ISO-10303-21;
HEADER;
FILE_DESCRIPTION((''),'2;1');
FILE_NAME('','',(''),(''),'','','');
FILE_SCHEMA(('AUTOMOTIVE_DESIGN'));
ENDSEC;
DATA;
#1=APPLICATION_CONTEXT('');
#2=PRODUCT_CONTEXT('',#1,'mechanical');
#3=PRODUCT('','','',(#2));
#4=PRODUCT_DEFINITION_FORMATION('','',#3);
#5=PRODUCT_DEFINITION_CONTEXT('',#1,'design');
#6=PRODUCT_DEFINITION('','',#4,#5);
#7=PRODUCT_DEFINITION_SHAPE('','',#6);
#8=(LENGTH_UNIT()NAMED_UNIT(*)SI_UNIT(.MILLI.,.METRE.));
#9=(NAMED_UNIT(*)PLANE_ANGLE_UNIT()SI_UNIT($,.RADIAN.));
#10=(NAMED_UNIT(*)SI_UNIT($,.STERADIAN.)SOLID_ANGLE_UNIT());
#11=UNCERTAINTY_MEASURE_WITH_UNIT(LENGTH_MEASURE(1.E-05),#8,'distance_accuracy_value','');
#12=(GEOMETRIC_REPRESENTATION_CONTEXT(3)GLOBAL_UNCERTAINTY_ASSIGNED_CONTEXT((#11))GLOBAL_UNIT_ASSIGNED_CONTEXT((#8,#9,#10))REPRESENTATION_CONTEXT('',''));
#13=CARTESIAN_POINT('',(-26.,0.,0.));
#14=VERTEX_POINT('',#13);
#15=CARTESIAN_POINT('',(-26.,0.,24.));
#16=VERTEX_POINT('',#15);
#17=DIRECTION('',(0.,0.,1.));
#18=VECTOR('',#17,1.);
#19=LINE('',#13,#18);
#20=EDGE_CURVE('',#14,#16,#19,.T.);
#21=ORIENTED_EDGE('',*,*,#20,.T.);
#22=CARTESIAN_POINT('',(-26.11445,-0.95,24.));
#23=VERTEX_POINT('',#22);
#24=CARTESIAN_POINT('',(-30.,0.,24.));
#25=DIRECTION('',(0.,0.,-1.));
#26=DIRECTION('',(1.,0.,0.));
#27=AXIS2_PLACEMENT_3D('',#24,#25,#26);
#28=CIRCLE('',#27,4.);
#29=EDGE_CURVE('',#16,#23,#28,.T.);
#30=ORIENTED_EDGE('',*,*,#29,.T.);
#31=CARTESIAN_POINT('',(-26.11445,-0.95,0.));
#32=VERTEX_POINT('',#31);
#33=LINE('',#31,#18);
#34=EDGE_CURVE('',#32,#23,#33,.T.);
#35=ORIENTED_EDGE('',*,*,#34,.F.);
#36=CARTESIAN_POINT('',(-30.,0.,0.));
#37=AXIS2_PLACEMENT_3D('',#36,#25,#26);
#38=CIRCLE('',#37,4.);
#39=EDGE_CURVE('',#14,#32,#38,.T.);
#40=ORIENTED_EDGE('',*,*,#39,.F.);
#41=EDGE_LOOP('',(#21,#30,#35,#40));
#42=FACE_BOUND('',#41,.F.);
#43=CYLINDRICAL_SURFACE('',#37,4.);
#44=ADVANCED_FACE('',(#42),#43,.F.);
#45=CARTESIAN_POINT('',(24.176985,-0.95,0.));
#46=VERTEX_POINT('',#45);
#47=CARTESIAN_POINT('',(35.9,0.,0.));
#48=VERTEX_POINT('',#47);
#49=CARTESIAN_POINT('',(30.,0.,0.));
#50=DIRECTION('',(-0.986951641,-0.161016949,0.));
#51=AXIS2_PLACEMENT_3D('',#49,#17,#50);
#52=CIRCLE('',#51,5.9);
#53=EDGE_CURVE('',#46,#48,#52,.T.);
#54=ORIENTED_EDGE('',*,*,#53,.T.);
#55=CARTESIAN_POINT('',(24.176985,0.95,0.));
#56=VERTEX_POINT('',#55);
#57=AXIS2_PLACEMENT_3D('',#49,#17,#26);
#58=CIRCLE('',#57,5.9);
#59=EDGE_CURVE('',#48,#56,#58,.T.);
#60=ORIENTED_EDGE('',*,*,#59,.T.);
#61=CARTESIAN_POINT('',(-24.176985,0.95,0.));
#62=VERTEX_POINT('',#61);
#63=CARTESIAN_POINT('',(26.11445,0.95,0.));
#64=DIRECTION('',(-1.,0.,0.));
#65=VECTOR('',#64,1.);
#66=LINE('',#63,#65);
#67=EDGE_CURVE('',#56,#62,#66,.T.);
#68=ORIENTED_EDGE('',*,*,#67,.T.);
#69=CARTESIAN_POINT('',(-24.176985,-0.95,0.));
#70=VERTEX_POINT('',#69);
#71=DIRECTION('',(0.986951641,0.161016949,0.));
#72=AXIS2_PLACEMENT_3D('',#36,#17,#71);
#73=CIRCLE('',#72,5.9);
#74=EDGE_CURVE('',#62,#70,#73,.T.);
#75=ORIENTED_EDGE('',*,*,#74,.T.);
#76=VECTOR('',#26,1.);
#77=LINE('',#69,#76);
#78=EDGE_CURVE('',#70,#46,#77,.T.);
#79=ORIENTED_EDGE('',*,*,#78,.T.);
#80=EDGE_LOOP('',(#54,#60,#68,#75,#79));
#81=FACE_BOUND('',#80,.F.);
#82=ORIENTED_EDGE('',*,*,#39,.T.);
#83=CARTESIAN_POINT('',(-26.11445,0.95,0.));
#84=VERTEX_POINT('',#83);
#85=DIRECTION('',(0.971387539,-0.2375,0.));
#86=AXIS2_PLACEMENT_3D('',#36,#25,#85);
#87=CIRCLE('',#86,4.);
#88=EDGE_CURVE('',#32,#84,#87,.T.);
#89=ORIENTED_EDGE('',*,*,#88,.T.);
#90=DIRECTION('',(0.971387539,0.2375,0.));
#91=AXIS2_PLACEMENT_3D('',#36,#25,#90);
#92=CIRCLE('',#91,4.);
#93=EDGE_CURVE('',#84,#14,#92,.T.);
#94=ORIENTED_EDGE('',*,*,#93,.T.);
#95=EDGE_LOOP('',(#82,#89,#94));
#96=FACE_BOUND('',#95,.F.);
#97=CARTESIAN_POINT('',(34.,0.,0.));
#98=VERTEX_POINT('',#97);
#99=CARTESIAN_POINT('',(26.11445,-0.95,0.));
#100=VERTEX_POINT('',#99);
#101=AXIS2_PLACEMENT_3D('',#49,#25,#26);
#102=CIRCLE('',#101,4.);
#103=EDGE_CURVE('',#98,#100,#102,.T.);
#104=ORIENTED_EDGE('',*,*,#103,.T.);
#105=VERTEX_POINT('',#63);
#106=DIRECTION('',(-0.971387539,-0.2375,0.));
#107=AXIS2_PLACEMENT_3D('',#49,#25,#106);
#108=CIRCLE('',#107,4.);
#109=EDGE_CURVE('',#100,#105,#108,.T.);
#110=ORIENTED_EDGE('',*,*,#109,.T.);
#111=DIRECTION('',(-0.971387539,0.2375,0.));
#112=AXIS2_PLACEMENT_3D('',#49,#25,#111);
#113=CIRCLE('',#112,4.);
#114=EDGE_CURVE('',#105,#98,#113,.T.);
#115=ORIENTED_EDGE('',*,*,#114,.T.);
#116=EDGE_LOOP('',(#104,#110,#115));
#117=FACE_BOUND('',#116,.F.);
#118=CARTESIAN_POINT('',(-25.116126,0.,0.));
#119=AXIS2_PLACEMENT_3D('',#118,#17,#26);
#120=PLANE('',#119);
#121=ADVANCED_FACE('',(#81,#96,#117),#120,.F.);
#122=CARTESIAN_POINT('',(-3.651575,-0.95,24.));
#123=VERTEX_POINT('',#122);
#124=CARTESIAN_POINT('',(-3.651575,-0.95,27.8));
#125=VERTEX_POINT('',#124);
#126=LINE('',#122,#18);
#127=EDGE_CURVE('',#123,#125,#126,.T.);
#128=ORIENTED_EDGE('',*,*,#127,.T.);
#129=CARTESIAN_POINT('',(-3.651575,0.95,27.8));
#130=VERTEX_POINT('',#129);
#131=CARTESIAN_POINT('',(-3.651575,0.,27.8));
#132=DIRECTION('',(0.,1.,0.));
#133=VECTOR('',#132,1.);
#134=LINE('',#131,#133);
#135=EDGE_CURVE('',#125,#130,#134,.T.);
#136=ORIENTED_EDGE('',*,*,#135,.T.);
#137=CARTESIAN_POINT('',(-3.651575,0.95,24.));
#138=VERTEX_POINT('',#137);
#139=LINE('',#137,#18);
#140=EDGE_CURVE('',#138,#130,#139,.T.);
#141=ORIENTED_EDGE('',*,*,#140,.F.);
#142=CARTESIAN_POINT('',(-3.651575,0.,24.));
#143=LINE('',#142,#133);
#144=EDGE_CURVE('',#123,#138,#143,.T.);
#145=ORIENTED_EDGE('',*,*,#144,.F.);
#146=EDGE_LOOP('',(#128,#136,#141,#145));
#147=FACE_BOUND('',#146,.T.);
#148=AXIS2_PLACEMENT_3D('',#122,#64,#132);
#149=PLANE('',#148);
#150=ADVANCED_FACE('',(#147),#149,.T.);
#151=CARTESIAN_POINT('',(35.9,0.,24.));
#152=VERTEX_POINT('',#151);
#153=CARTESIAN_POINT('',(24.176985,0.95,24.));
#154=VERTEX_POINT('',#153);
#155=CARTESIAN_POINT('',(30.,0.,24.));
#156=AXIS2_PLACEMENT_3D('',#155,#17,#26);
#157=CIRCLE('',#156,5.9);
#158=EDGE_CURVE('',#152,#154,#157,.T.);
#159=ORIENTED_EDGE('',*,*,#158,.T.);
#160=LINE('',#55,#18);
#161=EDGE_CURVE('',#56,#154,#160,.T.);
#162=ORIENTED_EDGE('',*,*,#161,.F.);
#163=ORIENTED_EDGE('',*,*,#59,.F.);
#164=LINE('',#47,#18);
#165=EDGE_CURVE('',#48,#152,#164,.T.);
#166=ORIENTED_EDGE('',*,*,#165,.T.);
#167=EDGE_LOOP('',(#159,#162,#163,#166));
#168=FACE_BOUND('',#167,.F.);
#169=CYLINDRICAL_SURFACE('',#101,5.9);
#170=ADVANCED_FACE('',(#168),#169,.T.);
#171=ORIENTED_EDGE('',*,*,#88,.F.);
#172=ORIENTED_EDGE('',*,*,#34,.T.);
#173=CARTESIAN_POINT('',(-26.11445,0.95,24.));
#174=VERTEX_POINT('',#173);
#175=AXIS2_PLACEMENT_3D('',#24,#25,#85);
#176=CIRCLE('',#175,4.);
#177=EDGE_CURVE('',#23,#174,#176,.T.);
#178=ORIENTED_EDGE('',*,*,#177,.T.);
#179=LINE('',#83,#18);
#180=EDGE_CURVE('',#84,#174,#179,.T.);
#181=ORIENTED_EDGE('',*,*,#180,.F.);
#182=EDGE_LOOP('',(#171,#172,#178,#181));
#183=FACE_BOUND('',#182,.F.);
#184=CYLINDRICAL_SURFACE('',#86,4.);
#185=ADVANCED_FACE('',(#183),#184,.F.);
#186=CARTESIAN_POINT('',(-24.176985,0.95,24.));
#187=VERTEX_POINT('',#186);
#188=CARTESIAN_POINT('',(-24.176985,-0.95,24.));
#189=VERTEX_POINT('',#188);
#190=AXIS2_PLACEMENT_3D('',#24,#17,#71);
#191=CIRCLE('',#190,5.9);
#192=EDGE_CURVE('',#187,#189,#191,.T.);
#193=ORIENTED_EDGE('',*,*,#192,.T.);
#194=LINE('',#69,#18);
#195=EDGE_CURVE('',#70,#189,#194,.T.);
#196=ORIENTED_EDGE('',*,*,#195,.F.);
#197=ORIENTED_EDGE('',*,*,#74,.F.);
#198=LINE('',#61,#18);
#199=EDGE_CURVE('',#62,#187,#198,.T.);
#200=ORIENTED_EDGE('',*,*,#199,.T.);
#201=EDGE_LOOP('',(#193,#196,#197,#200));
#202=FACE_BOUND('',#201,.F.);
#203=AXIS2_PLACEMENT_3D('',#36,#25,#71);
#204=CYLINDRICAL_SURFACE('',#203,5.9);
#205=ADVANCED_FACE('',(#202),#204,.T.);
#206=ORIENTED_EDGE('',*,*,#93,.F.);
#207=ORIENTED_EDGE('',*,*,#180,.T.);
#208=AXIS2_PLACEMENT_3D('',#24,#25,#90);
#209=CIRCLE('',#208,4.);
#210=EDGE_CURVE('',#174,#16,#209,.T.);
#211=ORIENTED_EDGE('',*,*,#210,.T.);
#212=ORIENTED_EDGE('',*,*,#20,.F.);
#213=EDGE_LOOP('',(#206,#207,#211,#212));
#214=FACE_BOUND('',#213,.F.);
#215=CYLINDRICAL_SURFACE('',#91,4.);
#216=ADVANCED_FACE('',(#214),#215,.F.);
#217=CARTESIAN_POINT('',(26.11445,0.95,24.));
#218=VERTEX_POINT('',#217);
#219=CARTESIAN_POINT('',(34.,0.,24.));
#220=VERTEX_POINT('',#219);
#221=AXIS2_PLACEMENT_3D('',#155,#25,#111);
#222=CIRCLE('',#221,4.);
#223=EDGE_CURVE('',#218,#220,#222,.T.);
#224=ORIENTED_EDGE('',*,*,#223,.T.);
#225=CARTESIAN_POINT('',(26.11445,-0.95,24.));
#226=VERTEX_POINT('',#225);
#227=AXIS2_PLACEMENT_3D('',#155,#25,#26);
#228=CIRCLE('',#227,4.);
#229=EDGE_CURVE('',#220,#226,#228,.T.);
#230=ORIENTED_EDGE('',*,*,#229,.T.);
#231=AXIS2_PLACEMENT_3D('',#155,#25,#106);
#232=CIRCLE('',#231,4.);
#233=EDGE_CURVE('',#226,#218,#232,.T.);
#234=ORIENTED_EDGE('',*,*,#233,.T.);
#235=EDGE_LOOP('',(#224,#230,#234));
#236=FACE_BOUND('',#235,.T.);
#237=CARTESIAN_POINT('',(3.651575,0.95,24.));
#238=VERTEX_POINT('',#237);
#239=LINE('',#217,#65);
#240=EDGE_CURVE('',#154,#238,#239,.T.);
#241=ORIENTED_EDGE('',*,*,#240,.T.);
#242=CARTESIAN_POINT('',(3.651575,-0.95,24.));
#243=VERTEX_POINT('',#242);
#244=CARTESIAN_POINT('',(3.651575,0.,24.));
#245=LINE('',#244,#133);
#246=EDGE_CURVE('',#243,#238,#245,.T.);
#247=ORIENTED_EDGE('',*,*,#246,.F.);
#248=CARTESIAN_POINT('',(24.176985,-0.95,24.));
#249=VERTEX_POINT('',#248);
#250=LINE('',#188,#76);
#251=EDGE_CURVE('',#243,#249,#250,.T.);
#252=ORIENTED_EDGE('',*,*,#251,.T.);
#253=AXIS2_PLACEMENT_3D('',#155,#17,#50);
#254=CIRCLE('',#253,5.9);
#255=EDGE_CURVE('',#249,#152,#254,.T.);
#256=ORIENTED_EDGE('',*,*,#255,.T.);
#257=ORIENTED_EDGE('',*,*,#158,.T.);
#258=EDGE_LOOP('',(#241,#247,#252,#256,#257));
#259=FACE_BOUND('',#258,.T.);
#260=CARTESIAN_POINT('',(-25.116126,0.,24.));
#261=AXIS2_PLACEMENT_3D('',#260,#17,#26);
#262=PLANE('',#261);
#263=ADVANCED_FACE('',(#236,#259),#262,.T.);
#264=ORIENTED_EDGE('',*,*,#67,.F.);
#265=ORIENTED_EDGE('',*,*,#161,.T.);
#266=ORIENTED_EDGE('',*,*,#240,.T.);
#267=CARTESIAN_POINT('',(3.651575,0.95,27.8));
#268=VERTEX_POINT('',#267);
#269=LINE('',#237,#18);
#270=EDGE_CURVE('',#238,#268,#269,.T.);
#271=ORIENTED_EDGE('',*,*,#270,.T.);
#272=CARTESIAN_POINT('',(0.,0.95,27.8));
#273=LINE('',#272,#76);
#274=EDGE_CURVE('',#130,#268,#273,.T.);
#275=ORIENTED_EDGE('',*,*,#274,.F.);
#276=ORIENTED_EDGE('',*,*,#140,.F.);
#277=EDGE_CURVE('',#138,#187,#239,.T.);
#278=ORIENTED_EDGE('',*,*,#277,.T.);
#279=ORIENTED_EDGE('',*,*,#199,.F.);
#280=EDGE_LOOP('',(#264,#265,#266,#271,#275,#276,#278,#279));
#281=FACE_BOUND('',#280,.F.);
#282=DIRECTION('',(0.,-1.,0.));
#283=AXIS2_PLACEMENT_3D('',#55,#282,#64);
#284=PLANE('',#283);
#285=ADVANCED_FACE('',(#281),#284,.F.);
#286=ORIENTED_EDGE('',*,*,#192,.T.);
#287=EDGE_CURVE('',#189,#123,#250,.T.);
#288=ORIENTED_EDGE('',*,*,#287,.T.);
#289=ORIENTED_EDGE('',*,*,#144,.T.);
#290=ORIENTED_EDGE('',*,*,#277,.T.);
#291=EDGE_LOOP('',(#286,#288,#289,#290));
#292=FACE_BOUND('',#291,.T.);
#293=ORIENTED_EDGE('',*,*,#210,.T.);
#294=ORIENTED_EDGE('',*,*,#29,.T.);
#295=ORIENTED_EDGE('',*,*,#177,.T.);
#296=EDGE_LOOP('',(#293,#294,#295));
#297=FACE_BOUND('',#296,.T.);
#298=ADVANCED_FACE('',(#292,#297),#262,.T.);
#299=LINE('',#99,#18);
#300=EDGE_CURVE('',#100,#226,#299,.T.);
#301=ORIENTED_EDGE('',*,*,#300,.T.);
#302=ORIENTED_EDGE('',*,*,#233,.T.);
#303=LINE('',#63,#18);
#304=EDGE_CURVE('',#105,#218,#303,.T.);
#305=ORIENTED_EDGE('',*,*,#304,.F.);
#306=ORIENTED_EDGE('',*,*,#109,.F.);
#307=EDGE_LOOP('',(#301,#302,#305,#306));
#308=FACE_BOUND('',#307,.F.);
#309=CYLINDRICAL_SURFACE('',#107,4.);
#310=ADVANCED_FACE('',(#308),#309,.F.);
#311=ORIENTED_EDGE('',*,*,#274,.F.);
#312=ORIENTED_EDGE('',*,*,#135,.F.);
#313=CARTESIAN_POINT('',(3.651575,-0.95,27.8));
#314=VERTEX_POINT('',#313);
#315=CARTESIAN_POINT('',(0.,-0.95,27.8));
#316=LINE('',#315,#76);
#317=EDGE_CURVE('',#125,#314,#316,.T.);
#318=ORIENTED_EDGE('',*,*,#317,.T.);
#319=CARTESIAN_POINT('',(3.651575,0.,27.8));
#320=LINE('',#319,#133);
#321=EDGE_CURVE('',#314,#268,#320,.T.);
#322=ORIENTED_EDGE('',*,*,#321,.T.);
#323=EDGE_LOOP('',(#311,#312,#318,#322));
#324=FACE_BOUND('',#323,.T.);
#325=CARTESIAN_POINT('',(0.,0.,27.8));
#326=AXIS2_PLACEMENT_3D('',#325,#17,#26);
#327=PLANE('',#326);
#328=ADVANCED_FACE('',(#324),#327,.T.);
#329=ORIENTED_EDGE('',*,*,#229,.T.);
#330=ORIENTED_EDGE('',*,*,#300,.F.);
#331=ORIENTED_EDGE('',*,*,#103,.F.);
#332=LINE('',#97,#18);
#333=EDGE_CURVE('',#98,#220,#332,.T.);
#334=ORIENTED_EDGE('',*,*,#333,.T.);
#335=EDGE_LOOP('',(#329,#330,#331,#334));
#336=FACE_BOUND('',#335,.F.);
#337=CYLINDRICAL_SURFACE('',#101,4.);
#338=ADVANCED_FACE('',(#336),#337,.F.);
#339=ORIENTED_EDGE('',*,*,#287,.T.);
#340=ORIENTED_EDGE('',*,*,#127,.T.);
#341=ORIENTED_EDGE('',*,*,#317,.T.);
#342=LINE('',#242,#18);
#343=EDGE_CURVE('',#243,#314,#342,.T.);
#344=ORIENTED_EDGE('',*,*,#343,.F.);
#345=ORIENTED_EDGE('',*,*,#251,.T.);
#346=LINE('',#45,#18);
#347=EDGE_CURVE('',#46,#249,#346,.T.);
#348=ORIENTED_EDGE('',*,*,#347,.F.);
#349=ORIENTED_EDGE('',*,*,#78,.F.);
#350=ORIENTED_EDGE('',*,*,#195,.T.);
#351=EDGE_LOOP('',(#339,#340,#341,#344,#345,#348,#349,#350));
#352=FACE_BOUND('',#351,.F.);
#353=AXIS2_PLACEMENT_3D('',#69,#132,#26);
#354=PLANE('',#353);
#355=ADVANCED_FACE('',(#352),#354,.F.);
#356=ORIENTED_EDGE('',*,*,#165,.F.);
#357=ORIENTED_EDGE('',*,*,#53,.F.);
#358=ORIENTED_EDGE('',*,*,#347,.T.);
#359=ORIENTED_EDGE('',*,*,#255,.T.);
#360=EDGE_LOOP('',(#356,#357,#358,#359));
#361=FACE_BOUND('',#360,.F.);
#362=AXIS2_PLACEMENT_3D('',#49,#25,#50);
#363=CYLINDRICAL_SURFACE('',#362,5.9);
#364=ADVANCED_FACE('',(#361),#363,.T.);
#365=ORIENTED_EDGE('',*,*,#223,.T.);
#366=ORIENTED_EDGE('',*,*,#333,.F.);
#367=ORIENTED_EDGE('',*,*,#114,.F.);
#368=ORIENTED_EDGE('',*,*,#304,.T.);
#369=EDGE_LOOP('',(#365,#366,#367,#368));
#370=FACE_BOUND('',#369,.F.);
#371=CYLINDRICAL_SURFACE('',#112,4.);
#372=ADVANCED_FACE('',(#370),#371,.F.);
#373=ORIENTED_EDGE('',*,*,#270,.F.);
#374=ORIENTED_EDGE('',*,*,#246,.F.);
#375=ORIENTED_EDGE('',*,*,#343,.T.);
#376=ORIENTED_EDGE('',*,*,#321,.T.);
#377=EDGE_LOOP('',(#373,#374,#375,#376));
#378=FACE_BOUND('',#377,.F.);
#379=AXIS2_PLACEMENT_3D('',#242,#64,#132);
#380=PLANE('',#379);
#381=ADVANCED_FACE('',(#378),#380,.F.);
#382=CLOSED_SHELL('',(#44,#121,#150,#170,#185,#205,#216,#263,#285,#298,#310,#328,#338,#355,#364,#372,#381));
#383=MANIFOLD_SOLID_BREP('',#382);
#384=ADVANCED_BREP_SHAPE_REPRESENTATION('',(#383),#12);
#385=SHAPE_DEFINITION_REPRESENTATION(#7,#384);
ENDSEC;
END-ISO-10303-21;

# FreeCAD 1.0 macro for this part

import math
import FreeCAD as App
import Part
import Sketcher


def add_polygon(sketch, points):
    """Adds a closed chain of lines whose ends are joined by coincident constraints."""
    first, n = sketch.GeometryCount, len(points)
    for a, b in zip(points, points[1:] + points[:1]):
        sketch.addGeometry(Part.LineSegment(App.Vector(*a, 0), App.Vector(*b, 0)), False)
    for i in range(n):
        sketch.addConstraint(Sketcher.Constraint("Coincident", first + i, 2, first + (i + 1) % n, 1))

doc = App.newDocument("Part")
body = doc.addObject("PartDesign::Body", "Body")

# Sketch on XY plane
sketch1 = body.newObject("Sketcher::SketchObject", "Sketch")
sketch1.AttachmentSupport = (doc.getObject("XY_Plane"), [""])
sketch1.MapMode = "FlatFace"
sketch1.addGeometry([
    Part.LineSegment(App.Vector(-24.2, -0.9, 0), App.Vector(24.2, -0.9, 0)),  # 0
    Part.ArcOfCircle(Part.Circle(App.Vector(30, 0, 0), App.Vector(0, 0, 1), 5.9), math.radians(-171), math.radians(0)),  # 1
    Part.ArcOfCircle(Part.Circle(App.Vector(30, 0, 0), App.Vector(0, 0, 1), 5.9), math.radians(0), math.radians(171)),  # 2
    Part.LineSegment(App.Vector(24.2, 0.9, 0), App.Vector(-24.2, 0.9, 0)),  # 3
    Part.ArcOfCircle(Part.Circle(App.Vector(-30, 0, 0), App.Vector(0, 0, 1), 5.9), math.radians(9), math.radians(351)),  # 4
    Part.ArcOfCircle(Part.Circle(App.Vector(-30, 0, 0), App.Vector(0, 0, 1), 4), math.radians(0), math.radians(13.74)),  # 5
    Part.ArcOfCircle(Part.Circle(App.Vector(-30, 0, 0), App.Vector(0, 0, 1), 4), math.radians(-13.74), math.radians(0)),  # 6
    Part.ArcOfCircle(Part.Circle(App.Vector(-30, 0, 0), App.Vector(0, 0, 1), 4), math.radians(14), math.radians(346)),  # 7
    Part.ArcOfCircle(Part.Circle(App.Vector(30, 0, 0), App.Vector(0, 0, 1), 4), math.radians(166), math.radians(194)),  # 8
    Part.ArcOfCircle(Part.Circle(App.Vector(30, 0, 0), App.Vector(0, 0, 1), 4), math.radians(0), math.radians(166)),  # 9
    Part.ArcOfCircle(Part.Circle(App.Vector(30, 0, 0), App.Vector(0, 0, 1), 4), math.radians(-166), math.radians(0)),  # 10
], False)
sketch1.addConstraint([
    Sketcher.Constraint("Coincident", 0, 2, 1, 1),
    Sketcher.Constraint("Tangent", 1, 2, 2, 1),
    Sketcher.Constraint("Coincident", 2, 2, 3, 1),
    Sketcher.Constraint("Coincident", 3, 2, 4, 1),
    Sketcher.Constraint("Coincident", 4, 2, 0, 1),
    Sketcher.Constraint("Tangent", 5, 1, 6, 2),
    Sketcher.Constraint("Tangent", 6, 1, 7, 2),
    Sketcher.Constraint("Tangent", 7, 1, 5, 2),
    Sketcher.Constraint("Tangent", 8, 1, 9, 2),
    Sketcher.Constraint("Tangent", 9, 1, 10, 2),
    Sketcher.Constraint("Tangent", 10, 1, 8, 2),
    Sketcher.Constraint("Horizontal", 0),
    Sketcher.Constraint("Horizontal", 3),
    Sketcher.Constraint("Coincident", 5, 3, 4, 3),
    Sketcher.Constraint("Coincident", 8, 3, 1, 3),
    Sketcher.Constraint("Equal", 1, 2),
    Sketcher.Constraint("Equal", 2, 4),
    Sketcher.Constraint("Equal", 7, 8),
    Sketcher.Constraint("Symmetric", 1, 3, 4, 3, -1, 1),
    Sketcher.Constraint("Symmetric", 7, 1, 8, 1, -2),
    Sketcher.Constraint("PointOnObject", 1, 2, -1),
    Sketcher.Constraint("PointOnObject", 5, 1, -1),
    Sketcher.Constraint("PointOnObject", 9, 1, -1),
    Sketcher.Constraint("Horizontal", 4, 2, 6, 1),
    Sketcher.Constraint("Horizontal", 3, 2, 7, 1),
    Sketcher.Constraint("Horizontal", 6, 1, 10, 1),
    Sketcher.Constraint("Vertical", 0, 2, 2, 2),
    Sketcher.Constraint("Radius", 5, 4.0),
    Sketcher.Constraint("Radius", 1, 5.9),
    Sketcher.Constraint("DistanceX", -1, 1, 1, 3, 30.0),
    Sketcher.Constraint("DistanceY", 0, 2, 2, 2, 1.9),
])
pad1 = body.newObject("PartDesign::Pad", "Pad")
pad1.Profile = sketch1
pad1.Length = 24

# Sketch on XY plane
sketch2 = body.newObject("Sketcher::SketchObject", "Sketch001")
sketch2.AttachmentSupport = (doc.getObject("XY_Plane"), [""])
sketch2.MapMode = "FlatFace"
sketch2.AttachmentOffset = App.Placement(App.Vector(0, 0, 24), App.Rotation())
add_polygon(sketch2, [(-3.7, 0.9), (-3.7, -0.9), (3.7, -0.9), (3.7, 0.9)])  # lines 0-3
sketch2.addConstraint([
    Sketcher.Constraint("Vertical", 0),
    Sketcher.Constraint("Horizontal", 1),
    Sketcher.Constraint("Vertical", 2),
    Sketcher.Constraint("Horizontal", 3),
    Sketcher.Constraint("Symmetric", 0, 2, 2, 2, -1, 1),
    Sketcher.Constraint("DistanceY", 0, 2, 0, 1, 1.9),
    Sketcher.Constraint("DistanceX", 1, 1, 1, 2, 7.30315),
])
pad2 = body.newObject("PartDesign::Pad", "Pad001")
pad2.Profile = sketch2
pad2.Length = 3.8

doc.recompute()
